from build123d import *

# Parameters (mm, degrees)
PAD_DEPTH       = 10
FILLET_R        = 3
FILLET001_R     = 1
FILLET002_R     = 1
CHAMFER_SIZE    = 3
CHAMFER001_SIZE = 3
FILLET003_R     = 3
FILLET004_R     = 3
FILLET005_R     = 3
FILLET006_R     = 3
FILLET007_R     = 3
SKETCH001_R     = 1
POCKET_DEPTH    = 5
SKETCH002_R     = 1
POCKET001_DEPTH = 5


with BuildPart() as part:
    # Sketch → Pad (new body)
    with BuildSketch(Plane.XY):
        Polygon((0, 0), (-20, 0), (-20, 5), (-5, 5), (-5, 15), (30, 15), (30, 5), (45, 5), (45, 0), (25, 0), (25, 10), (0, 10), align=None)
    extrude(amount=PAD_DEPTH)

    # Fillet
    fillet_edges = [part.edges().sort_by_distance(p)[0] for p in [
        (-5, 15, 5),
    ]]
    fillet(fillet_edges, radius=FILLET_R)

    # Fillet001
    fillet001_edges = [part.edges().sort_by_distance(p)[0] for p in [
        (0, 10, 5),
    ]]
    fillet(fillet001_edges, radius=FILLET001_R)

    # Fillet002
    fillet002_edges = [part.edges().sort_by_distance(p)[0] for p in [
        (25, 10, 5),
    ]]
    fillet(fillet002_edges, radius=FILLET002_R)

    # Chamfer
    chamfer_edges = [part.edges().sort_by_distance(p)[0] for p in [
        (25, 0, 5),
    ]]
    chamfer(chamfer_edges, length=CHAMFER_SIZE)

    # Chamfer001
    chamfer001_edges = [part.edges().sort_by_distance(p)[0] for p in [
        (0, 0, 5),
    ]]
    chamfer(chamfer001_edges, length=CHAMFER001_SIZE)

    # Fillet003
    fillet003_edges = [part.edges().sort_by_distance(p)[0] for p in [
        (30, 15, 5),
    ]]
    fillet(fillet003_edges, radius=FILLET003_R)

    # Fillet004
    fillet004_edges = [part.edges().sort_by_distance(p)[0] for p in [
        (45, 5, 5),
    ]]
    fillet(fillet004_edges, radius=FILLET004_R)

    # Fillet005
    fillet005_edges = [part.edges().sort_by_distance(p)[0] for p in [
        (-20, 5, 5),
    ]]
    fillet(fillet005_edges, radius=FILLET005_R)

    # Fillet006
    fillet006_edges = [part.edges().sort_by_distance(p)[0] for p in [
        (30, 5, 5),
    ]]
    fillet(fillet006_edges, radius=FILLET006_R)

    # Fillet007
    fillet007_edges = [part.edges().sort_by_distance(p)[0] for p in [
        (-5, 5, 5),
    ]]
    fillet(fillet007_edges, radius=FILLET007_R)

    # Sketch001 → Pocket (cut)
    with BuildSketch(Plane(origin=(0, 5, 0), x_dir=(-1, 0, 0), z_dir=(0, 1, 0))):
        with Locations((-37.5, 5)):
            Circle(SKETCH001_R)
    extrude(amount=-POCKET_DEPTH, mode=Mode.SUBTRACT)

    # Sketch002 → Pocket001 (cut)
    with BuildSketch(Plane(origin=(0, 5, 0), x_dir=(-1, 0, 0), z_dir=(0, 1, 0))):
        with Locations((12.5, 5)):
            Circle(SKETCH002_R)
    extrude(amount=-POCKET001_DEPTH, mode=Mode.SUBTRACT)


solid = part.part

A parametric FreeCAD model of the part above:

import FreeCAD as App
import Part
import Sketcher
Q = App.Units.Quantity


def edges_at(feature, points):
    """Names of the edges that pass closest to the given points."""
    edges = feature.Shape.Edges
    near = lambda p: min(range(len(edges)), key=lambda i: edges[i].distToShape(Part.Vertex(*p))[0])
    return sorted({f"Edge{near(p) + 1}" for p in points})


def add_polygon(sketch, points):
    """Adds a closed chain of lines whose ends are joined by coincident constraints."""
    first, n = sketch.GeometryCount, len(points)
    for a, b in zip(points, points[1:] + points[:1]):
        sketch.addGeometry(Part.LineSegment(App.Vector(*a, 0), App.Vector(*b, 0)), False)
    for i in range(n):
        sketch.addConstraint(Sketcher.Constraint("Coincident", first + i, 2, first + (i + 1) % n, 1))

doc = App.newDocument("Part")
params = doc.addObject("Spreadsheet::Sheet", "Params")
for row, (alias, value) in enumerate([
    ("sketch1_width", "20 mm"),
    ("sketch1_width2", "25 mm"),
    ("sketch1_width3", "15 mm"),
    ("sketch1_height", "10 mm"),
    ("sketch1_height2", "5 mm"),
    ("pad1_length", "10 mm"),
    ("fillet_radius", "3 mm"),
    ("fillet2_radius", "1 mm"),
    ("fillet3_radius", "1 mm"),
    ("chamfer_size", "3 mm"),
    ("chamfer2_size", "3 mm"),
    ("fillet4_radius", "3 mm"),
    ("fillet5_radius", "3 mm"),
    ("fillet6_radius", "3 mm"),
    ("fillet7_radius", "3 mm"),
    ("fillet8_radius", "3 mm"),
    ("sketch2_diameter", "2 mm"),
    ("pocket1_length", "5 mm"),
    ("sketch3_diameter", "2 mm"),
    ("pocket2_length", "5 mm"),
], start=1):
    params.set(f"A{row}", alias)
    params.set(f"B{row}", "=" + value)
    params.setAlias(f"B{row}", alias)

body = doc.addObject("PartDesign::Body", "Body")

sketch1 = doc.addObject("Sketcher::SketchObject", "Sketch")
body.addObject(sketch1)
sketch1.AttachmentSupport = (doc.XY_Plane, [""])
sketch1.MapMode = "FlatFace"
add_polygon(sketch1, [(-20, 0), (0, 0), (0, 10), (25, 10), (25, 0), (45, 0), (45, 5), (30, 5), (30, 15), (-5, 15), (-5, 5), (-20, 5)])
sketch1.addConstraint(Sketcher.Constraint("Horizontal", 0))
sketch1.addConstraint(Sketcher.Constraint("Vertical", 1))
sketch1.addConstraint(Sketcher.Constraint("Horizontal", 2))
sketch1.addConstraint(Sketcher.Constraint("Vertical", 3))
sketch1.addConstraint(Sketcher.Constraint("Horizontal", 4))
sketch1.addConstraint(Sketcher.Constraint("Vertical", 5))
sketch1.addConstraint(Sketcher.Constraint("Horizontal", 6))
sketch1.addConstraint(Sketcher.Constraint("Vertical", 7))
sketch1.addConstraint(Sketcher.Constraint("Horizontal", 8))
sketch1.addConstraint(Sketcher.Constraint("Vertical", 9))
sketch1.addConstraint(Sketcher.Constraint("Horizontal", 10))
sketch1.addConstraint(Sketcher.Constraint("Vertical", 11))
sketch1.addConstraint(Sketcher.Constraint("Coincident", 0, 2, -1, 1))
sketch1.addConstraint(Sketcher.Constraint("PointOnObject", 3, 2, -1))
sketch1.addConstraint(Sketcher.Constraint("Horizontal", 6, 2, 9, 2))
sketch1.addConstraint(Sketcher.Constraint("Equal", 0, 4))
sketch1.addConstraint(Sketcher.Constraint("Equal", 6, 10))
sketch1.addConstraint(Sketcher.Constraint("Equal", 3, 7))
sketch1.addConstraint(Sketcher.Constraint("DistanceX", 0, 1, 0, 2, Q("20 mm")))
sketch1.addConstraint(Sketcher.Constraint("DistanceX", 2, 1, 2, 2, Q("25 mm")))
sketch1.addConstraint(Sketcher.Constraint("DistanceX", 6, 2, 6, 1, Q("15 mm")))
sketch1.addConstraint(Sketcher.Constraint("DistanceY", 1, 1, 1, 2, Q("10 mm")))
sketch1.addConstraint(Sketcher.Constraint("DistanceY", 5, 1, 5, 2, Q("5 mm")))
sketch1.setExpression("Constraints[30]", "Params.sketch1_width")
sketch1.setExpression("Constraints[31]", "Params.sketch1_width2")
sketch1.setExpression("Constraints[32]", "Params.sketch1_width3")
sketch1.setExpression("Constraints[33]", "Params.sketch1_height")
sketch1.setExpression("Constraints[34]", "Params.sketch1_height2")
pad1 = doc.addObject("PartDesign::Pad", "Pad")
body.addObject(pad1)
pad1.Profile = sketch1
pad1.setExpression("Length", "Params.pad1_length")
doc.recompute()

fillet = doc.addObject("PartDesign::Fillet", "Fillet")
body.addObject(fillet)
fillet.Base = (pad1, edges_at(pad1, [(-5, 15, 5)]))
fillet.setExpression("Radius", "Params.fillet_radius")
doc.recompute()

fillet2 = doc.addObject("PartDesign::Fillet", "Fillet001")
body.addObject(fillet2)
fillet2.Base = (fillet, edges_at(fillet, [(0, 10, 5)]))
fillet2.setExpression("Radius", "Params.fillet2_radius")
doc.recompute()

fillet3 = doc.addObject("PartDesign::Fillet", "Fillet002")
body.addObject(fillet3)
fillet3.Base = (fillet2, edges_at(fillet2, [(25, 10, 5)]))
fillet3.setExpression("Radius", "Params.fillet3_radius")
doc.recompute()

chamfer = doc.addObject("PartDesign::Chamfer", "Chamfer")
body.addObject(chamfer)
chamfer.Base = (fillet3, edges_at(fillet3, [(25, 0, 5)]))
chamfer.setExpression("Size", "Params.chamfer_size")
doc.recompute()

chamfer2 = doc.addObject("PartDesign::Chamfer", "Chamfer001")
body.addObject(chamfer2)
chamfer2.Base = (chamfer, edges_at(chamfer, [(0, 0, 5)]))
chamfer2.setExpression("Size", "Params.chamfer2_size")
doc.recompute()

fillet4 = doc.addObject("PartDesign::Fillet", "Fillet003")
body.addObject(fillet4)
fillet4.Base = (chamfer2, edges_at(chamfer2, [(30, 15, 5)]))
fillet4.setExpression("Radius", "Params.fillet4_radius")
doc.recompute()

fillet5 = doc.addObject("PartDesign::Fillet", "Fillet004")
body.addObject(fillet5)
fillet5.Base = (fillet4, edges_at(fillet4, [(45, 5, 5)]))
fillet5.setExpression("Radius", "Params.fillet5_radius")
doc.recompute()

fillet6 = doc.addObject("PartDesign::Fillet", "Fillet005")
body.addObject(fillet6)
fillet6.Base = (fillet5, edges_at(fillet5, [(-20, 5, 5)]))
fillet6.setExpression("Radius", "Params.fillet6_radius")
doc.recompute()

fillet7 = doc.addObject("PartDesign::Fillet", "Fillet006")
body.addObject(fillet7)
fillet7.Base = (fillet6, edges_at(fillet6, [(30, 5, 5)]))
fillet7.setExpression("Radius", "Params.fillet7_radius")
doc.recompute()

fillet8 = doc.addObject("PartDesign::Fillet", "Fillet007")
body.addObject(fillet8)
fillet8.Base = (fillet7, edges_at(fillet7, [(-5, 5, 5)]))
fillet8.setExpression("Radius", "Params.fillet8_radius")

sketch2 = doc.addObject("Sketcher::SketchObject", "Sketch001")
body.addObject(sketch2)
sketch2.AttachmentSupport = (doc.XZ_Plane, [""])
sketch2.MapMode = "FlatFace"
sketch2.AttachmentOffset = App.Placement(App.Vector(0, 0, -5), App.Rotation())
sketch2.addGeometry(Part.Circle(App.Vector(37.5, 5, 0), App.Vector(0, 0, 1), 1), False)
sketch2.addConstraint(Sketcher.Constraint("Diameter", 0, Q("2 mm")))
sketch2.addConstraint(Sketcher.Constraint("DistanceY", -1, 1, 0, 3, Q("5 mm")))
sketch2.addConstraint(Sketcher.Constraint("DistanceX", -1, 1, 0, 3, Q("37.5 mm")))
sketch2.setExpression("Constraints[0]", "Params.sketch2_diameter")
pocket1 = doc.addObject("PartDesign::Pocket", "Pocket")
body.addObject(pocket1)
pocket1.Profile = sketch2
pocket1.setExpression("Length", "Params.pocket1_length")
pocket1.Reversed = True

sketch3 = doc.addObject("Sketcher::SketchObject", "Sketch002")
body.addObject(sketch3)
sketch3.AttachmentSupport = (doc.XZ_Plane, [""])
sketch3.MapMode = "FlatFace"
sketch3.AttachmentOffset = App.Placement(App.Vector(0, 0, -5), App.Rotation())
sketch3.addGeometry(Part.Circle(App.Vector(-12.5, 5, 0), App.Vector(0, 0, 1), 1), False)
sketch3.addConstraint(Sketcher.Constraint("Diameter", 0, Q("2 mm")))
sketch3.addConstraint(Sketcher.Constraint("DistanceY", -1, 1, 0, 3, Q("5 mm")))
sketch3.addConstraint(Sketcher.Constraint("DistanceX", 0, 3, -1, 1, Q("12.5 mm")))
sketch3.setExpression("Constraints[0]", "Params.sketch3_diameter")
pocket2 = doc.addObject("PartDesign::Pocket", "Pocket001")
body.addObject(pocket2)
pocket2.Profile = sketch3
pocket2.setExpression("Length", "Params.pocket2_length")
pocket2.Reversed = True

doc.recompute()
